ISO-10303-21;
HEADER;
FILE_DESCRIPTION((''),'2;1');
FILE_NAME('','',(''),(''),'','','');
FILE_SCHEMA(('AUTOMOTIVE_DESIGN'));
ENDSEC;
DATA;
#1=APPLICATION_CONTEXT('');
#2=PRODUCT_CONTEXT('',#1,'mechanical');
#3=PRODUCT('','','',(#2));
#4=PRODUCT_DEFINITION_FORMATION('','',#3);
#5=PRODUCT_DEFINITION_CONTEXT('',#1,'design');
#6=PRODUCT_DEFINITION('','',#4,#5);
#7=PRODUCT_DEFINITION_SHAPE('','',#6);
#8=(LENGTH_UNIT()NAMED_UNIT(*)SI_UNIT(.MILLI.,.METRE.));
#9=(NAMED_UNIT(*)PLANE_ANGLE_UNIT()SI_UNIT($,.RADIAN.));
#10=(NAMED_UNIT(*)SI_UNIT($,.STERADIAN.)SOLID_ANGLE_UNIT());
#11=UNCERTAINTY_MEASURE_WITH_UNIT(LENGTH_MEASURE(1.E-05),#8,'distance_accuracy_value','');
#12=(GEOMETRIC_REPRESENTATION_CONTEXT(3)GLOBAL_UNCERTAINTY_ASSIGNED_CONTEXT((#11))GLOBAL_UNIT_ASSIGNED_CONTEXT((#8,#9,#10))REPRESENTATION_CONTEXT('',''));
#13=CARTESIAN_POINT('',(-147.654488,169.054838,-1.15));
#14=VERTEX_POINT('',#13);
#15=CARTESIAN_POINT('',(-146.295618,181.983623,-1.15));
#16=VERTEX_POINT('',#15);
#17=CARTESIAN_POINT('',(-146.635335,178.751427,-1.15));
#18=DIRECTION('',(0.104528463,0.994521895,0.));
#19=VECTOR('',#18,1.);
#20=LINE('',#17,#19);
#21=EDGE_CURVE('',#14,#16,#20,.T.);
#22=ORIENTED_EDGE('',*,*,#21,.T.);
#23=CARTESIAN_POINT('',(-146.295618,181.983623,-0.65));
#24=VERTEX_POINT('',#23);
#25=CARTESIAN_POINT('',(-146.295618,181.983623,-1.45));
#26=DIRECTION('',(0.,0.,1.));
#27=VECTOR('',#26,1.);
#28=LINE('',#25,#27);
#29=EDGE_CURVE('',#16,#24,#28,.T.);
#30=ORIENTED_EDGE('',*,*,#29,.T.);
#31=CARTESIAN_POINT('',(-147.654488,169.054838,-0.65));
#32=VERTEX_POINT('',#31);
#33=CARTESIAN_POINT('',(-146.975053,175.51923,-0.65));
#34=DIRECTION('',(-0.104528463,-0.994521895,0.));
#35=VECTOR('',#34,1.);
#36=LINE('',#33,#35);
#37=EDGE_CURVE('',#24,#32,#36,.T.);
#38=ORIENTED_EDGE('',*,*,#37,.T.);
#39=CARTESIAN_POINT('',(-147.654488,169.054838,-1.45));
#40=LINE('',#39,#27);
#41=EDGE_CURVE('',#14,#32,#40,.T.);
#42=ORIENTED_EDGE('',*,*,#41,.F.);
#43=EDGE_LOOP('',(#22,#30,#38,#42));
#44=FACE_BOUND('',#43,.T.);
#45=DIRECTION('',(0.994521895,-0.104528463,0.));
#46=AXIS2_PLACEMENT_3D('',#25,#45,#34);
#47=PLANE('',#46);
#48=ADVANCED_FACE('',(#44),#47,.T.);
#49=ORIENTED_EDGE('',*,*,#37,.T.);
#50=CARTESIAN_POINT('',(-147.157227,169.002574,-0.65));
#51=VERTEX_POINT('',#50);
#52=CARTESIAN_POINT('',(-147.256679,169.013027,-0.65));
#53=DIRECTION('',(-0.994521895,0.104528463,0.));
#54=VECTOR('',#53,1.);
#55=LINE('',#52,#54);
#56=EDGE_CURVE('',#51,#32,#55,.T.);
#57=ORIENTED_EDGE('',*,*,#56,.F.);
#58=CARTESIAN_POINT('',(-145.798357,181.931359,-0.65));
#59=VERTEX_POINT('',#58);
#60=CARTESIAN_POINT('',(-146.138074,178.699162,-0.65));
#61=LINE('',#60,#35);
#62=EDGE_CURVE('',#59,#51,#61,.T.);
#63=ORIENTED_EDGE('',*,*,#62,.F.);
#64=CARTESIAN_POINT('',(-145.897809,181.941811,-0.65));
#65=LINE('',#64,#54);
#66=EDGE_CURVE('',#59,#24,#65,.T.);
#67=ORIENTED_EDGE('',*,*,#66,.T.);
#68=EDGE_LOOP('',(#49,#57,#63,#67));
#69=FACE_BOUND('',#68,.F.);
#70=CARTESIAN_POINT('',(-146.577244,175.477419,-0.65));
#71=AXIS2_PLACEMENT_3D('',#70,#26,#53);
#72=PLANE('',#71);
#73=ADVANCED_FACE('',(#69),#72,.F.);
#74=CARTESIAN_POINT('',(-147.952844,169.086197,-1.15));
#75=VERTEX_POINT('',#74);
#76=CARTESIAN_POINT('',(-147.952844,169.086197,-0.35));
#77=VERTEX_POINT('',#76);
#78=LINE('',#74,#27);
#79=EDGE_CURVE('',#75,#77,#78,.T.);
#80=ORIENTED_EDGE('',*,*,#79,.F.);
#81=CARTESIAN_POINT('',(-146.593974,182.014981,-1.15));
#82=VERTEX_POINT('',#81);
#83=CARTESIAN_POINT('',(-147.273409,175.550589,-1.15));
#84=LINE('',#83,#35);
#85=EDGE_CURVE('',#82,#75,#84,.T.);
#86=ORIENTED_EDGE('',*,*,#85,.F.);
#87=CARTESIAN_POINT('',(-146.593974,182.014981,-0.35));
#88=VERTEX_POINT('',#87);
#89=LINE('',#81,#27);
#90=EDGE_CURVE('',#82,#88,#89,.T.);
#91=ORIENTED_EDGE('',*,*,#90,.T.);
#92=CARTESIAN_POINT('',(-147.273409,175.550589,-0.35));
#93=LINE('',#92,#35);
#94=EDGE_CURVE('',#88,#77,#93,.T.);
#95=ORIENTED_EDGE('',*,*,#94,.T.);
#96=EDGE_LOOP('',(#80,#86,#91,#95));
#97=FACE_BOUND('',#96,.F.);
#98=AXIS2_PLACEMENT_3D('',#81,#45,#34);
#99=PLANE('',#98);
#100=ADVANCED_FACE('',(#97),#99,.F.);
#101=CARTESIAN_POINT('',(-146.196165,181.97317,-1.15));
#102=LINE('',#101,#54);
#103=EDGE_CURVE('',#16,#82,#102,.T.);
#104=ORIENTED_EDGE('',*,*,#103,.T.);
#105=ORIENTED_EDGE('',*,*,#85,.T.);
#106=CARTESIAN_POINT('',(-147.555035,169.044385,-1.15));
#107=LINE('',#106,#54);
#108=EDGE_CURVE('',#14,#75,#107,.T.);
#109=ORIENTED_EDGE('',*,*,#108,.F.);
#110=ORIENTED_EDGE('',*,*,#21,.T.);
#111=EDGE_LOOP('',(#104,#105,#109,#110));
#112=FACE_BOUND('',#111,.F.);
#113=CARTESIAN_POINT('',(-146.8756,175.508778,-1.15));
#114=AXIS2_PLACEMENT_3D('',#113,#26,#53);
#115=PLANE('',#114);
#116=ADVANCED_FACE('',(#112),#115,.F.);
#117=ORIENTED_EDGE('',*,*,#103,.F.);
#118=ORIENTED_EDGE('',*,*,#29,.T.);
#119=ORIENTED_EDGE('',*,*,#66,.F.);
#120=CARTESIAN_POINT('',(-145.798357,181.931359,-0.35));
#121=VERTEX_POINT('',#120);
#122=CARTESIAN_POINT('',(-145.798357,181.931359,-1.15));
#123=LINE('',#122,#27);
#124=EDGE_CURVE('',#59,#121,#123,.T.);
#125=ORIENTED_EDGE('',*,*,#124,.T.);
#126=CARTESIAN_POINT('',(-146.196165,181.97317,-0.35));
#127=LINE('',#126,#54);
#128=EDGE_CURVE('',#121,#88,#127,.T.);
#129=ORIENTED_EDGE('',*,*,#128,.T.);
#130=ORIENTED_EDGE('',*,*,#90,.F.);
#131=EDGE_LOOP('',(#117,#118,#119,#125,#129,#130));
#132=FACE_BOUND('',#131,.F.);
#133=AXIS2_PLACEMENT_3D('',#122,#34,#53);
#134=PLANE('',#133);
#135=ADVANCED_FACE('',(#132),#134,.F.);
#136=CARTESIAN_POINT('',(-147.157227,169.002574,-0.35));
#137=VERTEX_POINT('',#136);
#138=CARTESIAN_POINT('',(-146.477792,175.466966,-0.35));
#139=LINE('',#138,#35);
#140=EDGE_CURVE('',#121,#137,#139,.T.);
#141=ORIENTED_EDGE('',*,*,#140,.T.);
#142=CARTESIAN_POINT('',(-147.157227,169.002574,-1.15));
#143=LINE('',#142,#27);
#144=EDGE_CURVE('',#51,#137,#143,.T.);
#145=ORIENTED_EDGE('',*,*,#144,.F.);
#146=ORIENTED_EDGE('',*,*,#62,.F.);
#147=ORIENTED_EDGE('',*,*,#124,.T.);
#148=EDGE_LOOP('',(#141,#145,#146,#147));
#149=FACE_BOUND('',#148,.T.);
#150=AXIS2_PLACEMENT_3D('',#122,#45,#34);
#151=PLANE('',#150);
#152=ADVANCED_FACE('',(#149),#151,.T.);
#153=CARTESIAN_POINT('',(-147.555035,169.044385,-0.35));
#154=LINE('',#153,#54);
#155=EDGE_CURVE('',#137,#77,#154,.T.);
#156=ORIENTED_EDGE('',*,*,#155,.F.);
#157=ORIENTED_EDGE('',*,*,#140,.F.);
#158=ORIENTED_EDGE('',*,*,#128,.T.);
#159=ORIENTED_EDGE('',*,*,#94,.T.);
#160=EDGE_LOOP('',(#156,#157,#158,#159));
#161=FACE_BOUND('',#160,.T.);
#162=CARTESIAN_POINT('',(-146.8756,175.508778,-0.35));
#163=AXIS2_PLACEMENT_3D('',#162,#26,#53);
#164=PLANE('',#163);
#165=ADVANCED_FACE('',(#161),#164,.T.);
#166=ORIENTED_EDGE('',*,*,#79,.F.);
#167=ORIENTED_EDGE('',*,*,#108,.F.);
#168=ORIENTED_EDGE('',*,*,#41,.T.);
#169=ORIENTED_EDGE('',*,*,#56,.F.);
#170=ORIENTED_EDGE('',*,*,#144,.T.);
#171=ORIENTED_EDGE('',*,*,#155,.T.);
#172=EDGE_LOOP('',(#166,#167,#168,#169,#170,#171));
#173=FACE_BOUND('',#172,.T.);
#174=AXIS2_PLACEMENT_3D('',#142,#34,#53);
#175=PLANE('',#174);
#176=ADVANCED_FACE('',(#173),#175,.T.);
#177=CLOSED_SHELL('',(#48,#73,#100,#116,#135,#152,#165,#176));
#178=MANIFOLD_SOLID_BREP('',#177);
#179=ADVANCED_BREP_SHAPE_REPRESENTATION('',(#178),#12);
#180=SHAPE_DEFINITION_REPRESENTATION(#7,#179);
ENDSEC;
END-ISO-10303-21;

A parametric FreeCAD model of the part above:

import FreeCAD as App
import Part
import Sketcher

V = App.Vector

doc = App.newDocument("Part")
params = doc.addObject("Spreadsheet::Sheet", "Params")
for row, (alias, value) in enumerate([
    ("sketch1_height", "13 mm"),
    ("sketch1_width", "0.8 mm"),
    ("pad1_length", "0.8 mm"),
    ("sketch2_height", "13 mm"),
    ("sketch2_width", "0.8 mm"),
    ("pad2_length", "0.8 mm"),
], start=1):
    params.set(f"A{row}", alias)
    params.set(f"B{row}", "=" + value)
    params.setAlias(f"B{row}", alias)

body = doc.addObject("PartDesign::Body", "Body")

# Sketch on XY plane
sketch1 = body.newObject("Sketcher::SketchObject", "Sketch")
sketch1.AttachmentSupport = (doc.getObject("XY_Plane"), [""])
sketch1.MapMode = "FlatFace"
sketch1.addGeometry(Part.LineSegment(V(0, 13, 0), V(0, 0, 0)), False)
sketch1.addGeometry(Part.LineSegment(V(0, 0, 0), V(0.8, 0, 0)), False)
sketch1.addGeometry(Part.LineSegment(V(0.8, 0, 0), V(0.8, 13, 0)), False)
sketch1.addGeometry(Part.LineSegment(V(0.8, 13, 0), V(0, 13, 0)), False)
sketch1.addConstraint(Sketcher.Constraint("Coincident", 0, 2, 1, 1))
sketch1.addConstraint(Sketcher.Constraint("Coincident", 1, 2, 2, 1))
sketch1.addConstraint(Sketcher.Constraint("Coincident", 2, 2, 3, 1))
sketch1.addConstraint(Sketcher.Constraint("Coincident", 3, 2, 0, 1))
sketch1.addConstraint(Sketcher.Constraint("Vertical", 0))
sketch1.addConstraint(Sketcher.Constraint("Horizontal", 1))
sketch1.addConstraint(Sketcher.Constraint("Vertical", 2))
sketch1.addConstraint(Sketcher.Constraint("Horizontal", 3))
sketch1.addConstraint(Sketcher.Constraint("Coincident", 0, 2, -1, 1))
sketch1.addConstraint(Sketcher.Constraint("DistanceY", 0, 2, 0, 1, 13.0))
sketch1.addConstraint(Sketcher.Constraint("DistanceX", 1, 1, 1, 2, 0.8))
sketch1.setExpression("Constraints[9]", "Params.sketch1_height")
sketch1.setExpression("Constraints[10]", "Params.sketch1_width")
pad1 = body.newObject("PartDesign::Pad", "Pad")
pad1.Profile = sketch1
pad1.setExpression("Length", "Params.pad1_length")
body2 = doc.addObject("PartDesign::Body", "Body001")

# Sketch on XY plane
sketch2 = body2.newObject("Sketcher::SketchObject", "Sketch001")
sketch2.AttachmentSupport = (doc.getObject("XY_Plane001"), [""])
sketch2.MapMode = "FlatFace"
sketch2.AttachmentOffset = App.Placement(V(0, 0, 0.3), App.Rotation())
sketch2.addGeometry(Part.LineSegment(V(0.3, 13, 0), V(0.3, 0, 0)), False)
sketch2.addGeometry(Part.LineSegment(V(0.3, 0, 0), V(1.1, 0, 0)), False)
sketch2.addGeometry(Part.LineSegment(V(1.1, 0, 0), V(1.1, 13, 0)), False)
sketch2.addGeometry(Part.LineSegment(V(1.1, 13, 0), V(0.3, 13, 0)), False)
sketch2.addConstraint(Sketcher.Constraint("Coincident", 0, 2, 1, 1))
sketch2.addConstraint(Sketcher.Constraint("Coincident", 1, 2, 2, 1))
sketch2.addConstraint(Sketcher.Constraint("Coincident", 2, 2, 3, 1))
sketch2.addConstraint(Sketcher.Constraint("Coincident", 3, 2, 0, 1))
sketch2.addConstraint(Sketcher.Constraint("Vertical", 0))
sketch2.addConstraint(Sketcher.Constraint("Horizontal", 1))
sketch2.addConstraint(Sketcher.Constraint("Vertical", 2))
sketch2.addConstraint(Sketcher.Constraint("Horizontal", 3))
sketch2.addConstraint(Sketcher.Constraint("PointOnObject", 0, 2, -1))
sketch2.addConstraint(Sketcher.Constraint("DistanceY", 0, 2, 0, 1, 13.0))
sketch2.addConstraint(Sketcher.Constraint("DistanceX", 1, 1, 1, 2, 0.8))
sketch2.addConstraint(Sketcher.Constraint("DistanceX", -1, 1, 0, 2, 0.3))
sketch2.setExpression("Constraints[9]", "Params.sketch2_height")
sketch2.setExpression("Constraints[10]", "Params.sketch2_width")
pad2 = body2.newObject("PartDesign::Pad", "Pad001")
pad2.Profile = sketch2
pad2.setExpression("Length", "Params.pad2_length")
doc.recompute()

boolean = body2.newObject("PartDesign::Boolean", "Boolean")
boolean.Type = "Cut"
boolean.addObjects([body])
body3 = doc.addObject("PartDesign::Body", "Body002")
doc.recompute()

body2.Placement = App.Placement(V(-145.5, 181.9, -1.45), App.Rotation(V(0, 0, 1), 174))
boolean2 = body3.newObject("PartDesign::Boolean", "Boolean001")
boolean2.Type = "Fuse"
boolean2.addObjects([body2])

doc.recompute()
